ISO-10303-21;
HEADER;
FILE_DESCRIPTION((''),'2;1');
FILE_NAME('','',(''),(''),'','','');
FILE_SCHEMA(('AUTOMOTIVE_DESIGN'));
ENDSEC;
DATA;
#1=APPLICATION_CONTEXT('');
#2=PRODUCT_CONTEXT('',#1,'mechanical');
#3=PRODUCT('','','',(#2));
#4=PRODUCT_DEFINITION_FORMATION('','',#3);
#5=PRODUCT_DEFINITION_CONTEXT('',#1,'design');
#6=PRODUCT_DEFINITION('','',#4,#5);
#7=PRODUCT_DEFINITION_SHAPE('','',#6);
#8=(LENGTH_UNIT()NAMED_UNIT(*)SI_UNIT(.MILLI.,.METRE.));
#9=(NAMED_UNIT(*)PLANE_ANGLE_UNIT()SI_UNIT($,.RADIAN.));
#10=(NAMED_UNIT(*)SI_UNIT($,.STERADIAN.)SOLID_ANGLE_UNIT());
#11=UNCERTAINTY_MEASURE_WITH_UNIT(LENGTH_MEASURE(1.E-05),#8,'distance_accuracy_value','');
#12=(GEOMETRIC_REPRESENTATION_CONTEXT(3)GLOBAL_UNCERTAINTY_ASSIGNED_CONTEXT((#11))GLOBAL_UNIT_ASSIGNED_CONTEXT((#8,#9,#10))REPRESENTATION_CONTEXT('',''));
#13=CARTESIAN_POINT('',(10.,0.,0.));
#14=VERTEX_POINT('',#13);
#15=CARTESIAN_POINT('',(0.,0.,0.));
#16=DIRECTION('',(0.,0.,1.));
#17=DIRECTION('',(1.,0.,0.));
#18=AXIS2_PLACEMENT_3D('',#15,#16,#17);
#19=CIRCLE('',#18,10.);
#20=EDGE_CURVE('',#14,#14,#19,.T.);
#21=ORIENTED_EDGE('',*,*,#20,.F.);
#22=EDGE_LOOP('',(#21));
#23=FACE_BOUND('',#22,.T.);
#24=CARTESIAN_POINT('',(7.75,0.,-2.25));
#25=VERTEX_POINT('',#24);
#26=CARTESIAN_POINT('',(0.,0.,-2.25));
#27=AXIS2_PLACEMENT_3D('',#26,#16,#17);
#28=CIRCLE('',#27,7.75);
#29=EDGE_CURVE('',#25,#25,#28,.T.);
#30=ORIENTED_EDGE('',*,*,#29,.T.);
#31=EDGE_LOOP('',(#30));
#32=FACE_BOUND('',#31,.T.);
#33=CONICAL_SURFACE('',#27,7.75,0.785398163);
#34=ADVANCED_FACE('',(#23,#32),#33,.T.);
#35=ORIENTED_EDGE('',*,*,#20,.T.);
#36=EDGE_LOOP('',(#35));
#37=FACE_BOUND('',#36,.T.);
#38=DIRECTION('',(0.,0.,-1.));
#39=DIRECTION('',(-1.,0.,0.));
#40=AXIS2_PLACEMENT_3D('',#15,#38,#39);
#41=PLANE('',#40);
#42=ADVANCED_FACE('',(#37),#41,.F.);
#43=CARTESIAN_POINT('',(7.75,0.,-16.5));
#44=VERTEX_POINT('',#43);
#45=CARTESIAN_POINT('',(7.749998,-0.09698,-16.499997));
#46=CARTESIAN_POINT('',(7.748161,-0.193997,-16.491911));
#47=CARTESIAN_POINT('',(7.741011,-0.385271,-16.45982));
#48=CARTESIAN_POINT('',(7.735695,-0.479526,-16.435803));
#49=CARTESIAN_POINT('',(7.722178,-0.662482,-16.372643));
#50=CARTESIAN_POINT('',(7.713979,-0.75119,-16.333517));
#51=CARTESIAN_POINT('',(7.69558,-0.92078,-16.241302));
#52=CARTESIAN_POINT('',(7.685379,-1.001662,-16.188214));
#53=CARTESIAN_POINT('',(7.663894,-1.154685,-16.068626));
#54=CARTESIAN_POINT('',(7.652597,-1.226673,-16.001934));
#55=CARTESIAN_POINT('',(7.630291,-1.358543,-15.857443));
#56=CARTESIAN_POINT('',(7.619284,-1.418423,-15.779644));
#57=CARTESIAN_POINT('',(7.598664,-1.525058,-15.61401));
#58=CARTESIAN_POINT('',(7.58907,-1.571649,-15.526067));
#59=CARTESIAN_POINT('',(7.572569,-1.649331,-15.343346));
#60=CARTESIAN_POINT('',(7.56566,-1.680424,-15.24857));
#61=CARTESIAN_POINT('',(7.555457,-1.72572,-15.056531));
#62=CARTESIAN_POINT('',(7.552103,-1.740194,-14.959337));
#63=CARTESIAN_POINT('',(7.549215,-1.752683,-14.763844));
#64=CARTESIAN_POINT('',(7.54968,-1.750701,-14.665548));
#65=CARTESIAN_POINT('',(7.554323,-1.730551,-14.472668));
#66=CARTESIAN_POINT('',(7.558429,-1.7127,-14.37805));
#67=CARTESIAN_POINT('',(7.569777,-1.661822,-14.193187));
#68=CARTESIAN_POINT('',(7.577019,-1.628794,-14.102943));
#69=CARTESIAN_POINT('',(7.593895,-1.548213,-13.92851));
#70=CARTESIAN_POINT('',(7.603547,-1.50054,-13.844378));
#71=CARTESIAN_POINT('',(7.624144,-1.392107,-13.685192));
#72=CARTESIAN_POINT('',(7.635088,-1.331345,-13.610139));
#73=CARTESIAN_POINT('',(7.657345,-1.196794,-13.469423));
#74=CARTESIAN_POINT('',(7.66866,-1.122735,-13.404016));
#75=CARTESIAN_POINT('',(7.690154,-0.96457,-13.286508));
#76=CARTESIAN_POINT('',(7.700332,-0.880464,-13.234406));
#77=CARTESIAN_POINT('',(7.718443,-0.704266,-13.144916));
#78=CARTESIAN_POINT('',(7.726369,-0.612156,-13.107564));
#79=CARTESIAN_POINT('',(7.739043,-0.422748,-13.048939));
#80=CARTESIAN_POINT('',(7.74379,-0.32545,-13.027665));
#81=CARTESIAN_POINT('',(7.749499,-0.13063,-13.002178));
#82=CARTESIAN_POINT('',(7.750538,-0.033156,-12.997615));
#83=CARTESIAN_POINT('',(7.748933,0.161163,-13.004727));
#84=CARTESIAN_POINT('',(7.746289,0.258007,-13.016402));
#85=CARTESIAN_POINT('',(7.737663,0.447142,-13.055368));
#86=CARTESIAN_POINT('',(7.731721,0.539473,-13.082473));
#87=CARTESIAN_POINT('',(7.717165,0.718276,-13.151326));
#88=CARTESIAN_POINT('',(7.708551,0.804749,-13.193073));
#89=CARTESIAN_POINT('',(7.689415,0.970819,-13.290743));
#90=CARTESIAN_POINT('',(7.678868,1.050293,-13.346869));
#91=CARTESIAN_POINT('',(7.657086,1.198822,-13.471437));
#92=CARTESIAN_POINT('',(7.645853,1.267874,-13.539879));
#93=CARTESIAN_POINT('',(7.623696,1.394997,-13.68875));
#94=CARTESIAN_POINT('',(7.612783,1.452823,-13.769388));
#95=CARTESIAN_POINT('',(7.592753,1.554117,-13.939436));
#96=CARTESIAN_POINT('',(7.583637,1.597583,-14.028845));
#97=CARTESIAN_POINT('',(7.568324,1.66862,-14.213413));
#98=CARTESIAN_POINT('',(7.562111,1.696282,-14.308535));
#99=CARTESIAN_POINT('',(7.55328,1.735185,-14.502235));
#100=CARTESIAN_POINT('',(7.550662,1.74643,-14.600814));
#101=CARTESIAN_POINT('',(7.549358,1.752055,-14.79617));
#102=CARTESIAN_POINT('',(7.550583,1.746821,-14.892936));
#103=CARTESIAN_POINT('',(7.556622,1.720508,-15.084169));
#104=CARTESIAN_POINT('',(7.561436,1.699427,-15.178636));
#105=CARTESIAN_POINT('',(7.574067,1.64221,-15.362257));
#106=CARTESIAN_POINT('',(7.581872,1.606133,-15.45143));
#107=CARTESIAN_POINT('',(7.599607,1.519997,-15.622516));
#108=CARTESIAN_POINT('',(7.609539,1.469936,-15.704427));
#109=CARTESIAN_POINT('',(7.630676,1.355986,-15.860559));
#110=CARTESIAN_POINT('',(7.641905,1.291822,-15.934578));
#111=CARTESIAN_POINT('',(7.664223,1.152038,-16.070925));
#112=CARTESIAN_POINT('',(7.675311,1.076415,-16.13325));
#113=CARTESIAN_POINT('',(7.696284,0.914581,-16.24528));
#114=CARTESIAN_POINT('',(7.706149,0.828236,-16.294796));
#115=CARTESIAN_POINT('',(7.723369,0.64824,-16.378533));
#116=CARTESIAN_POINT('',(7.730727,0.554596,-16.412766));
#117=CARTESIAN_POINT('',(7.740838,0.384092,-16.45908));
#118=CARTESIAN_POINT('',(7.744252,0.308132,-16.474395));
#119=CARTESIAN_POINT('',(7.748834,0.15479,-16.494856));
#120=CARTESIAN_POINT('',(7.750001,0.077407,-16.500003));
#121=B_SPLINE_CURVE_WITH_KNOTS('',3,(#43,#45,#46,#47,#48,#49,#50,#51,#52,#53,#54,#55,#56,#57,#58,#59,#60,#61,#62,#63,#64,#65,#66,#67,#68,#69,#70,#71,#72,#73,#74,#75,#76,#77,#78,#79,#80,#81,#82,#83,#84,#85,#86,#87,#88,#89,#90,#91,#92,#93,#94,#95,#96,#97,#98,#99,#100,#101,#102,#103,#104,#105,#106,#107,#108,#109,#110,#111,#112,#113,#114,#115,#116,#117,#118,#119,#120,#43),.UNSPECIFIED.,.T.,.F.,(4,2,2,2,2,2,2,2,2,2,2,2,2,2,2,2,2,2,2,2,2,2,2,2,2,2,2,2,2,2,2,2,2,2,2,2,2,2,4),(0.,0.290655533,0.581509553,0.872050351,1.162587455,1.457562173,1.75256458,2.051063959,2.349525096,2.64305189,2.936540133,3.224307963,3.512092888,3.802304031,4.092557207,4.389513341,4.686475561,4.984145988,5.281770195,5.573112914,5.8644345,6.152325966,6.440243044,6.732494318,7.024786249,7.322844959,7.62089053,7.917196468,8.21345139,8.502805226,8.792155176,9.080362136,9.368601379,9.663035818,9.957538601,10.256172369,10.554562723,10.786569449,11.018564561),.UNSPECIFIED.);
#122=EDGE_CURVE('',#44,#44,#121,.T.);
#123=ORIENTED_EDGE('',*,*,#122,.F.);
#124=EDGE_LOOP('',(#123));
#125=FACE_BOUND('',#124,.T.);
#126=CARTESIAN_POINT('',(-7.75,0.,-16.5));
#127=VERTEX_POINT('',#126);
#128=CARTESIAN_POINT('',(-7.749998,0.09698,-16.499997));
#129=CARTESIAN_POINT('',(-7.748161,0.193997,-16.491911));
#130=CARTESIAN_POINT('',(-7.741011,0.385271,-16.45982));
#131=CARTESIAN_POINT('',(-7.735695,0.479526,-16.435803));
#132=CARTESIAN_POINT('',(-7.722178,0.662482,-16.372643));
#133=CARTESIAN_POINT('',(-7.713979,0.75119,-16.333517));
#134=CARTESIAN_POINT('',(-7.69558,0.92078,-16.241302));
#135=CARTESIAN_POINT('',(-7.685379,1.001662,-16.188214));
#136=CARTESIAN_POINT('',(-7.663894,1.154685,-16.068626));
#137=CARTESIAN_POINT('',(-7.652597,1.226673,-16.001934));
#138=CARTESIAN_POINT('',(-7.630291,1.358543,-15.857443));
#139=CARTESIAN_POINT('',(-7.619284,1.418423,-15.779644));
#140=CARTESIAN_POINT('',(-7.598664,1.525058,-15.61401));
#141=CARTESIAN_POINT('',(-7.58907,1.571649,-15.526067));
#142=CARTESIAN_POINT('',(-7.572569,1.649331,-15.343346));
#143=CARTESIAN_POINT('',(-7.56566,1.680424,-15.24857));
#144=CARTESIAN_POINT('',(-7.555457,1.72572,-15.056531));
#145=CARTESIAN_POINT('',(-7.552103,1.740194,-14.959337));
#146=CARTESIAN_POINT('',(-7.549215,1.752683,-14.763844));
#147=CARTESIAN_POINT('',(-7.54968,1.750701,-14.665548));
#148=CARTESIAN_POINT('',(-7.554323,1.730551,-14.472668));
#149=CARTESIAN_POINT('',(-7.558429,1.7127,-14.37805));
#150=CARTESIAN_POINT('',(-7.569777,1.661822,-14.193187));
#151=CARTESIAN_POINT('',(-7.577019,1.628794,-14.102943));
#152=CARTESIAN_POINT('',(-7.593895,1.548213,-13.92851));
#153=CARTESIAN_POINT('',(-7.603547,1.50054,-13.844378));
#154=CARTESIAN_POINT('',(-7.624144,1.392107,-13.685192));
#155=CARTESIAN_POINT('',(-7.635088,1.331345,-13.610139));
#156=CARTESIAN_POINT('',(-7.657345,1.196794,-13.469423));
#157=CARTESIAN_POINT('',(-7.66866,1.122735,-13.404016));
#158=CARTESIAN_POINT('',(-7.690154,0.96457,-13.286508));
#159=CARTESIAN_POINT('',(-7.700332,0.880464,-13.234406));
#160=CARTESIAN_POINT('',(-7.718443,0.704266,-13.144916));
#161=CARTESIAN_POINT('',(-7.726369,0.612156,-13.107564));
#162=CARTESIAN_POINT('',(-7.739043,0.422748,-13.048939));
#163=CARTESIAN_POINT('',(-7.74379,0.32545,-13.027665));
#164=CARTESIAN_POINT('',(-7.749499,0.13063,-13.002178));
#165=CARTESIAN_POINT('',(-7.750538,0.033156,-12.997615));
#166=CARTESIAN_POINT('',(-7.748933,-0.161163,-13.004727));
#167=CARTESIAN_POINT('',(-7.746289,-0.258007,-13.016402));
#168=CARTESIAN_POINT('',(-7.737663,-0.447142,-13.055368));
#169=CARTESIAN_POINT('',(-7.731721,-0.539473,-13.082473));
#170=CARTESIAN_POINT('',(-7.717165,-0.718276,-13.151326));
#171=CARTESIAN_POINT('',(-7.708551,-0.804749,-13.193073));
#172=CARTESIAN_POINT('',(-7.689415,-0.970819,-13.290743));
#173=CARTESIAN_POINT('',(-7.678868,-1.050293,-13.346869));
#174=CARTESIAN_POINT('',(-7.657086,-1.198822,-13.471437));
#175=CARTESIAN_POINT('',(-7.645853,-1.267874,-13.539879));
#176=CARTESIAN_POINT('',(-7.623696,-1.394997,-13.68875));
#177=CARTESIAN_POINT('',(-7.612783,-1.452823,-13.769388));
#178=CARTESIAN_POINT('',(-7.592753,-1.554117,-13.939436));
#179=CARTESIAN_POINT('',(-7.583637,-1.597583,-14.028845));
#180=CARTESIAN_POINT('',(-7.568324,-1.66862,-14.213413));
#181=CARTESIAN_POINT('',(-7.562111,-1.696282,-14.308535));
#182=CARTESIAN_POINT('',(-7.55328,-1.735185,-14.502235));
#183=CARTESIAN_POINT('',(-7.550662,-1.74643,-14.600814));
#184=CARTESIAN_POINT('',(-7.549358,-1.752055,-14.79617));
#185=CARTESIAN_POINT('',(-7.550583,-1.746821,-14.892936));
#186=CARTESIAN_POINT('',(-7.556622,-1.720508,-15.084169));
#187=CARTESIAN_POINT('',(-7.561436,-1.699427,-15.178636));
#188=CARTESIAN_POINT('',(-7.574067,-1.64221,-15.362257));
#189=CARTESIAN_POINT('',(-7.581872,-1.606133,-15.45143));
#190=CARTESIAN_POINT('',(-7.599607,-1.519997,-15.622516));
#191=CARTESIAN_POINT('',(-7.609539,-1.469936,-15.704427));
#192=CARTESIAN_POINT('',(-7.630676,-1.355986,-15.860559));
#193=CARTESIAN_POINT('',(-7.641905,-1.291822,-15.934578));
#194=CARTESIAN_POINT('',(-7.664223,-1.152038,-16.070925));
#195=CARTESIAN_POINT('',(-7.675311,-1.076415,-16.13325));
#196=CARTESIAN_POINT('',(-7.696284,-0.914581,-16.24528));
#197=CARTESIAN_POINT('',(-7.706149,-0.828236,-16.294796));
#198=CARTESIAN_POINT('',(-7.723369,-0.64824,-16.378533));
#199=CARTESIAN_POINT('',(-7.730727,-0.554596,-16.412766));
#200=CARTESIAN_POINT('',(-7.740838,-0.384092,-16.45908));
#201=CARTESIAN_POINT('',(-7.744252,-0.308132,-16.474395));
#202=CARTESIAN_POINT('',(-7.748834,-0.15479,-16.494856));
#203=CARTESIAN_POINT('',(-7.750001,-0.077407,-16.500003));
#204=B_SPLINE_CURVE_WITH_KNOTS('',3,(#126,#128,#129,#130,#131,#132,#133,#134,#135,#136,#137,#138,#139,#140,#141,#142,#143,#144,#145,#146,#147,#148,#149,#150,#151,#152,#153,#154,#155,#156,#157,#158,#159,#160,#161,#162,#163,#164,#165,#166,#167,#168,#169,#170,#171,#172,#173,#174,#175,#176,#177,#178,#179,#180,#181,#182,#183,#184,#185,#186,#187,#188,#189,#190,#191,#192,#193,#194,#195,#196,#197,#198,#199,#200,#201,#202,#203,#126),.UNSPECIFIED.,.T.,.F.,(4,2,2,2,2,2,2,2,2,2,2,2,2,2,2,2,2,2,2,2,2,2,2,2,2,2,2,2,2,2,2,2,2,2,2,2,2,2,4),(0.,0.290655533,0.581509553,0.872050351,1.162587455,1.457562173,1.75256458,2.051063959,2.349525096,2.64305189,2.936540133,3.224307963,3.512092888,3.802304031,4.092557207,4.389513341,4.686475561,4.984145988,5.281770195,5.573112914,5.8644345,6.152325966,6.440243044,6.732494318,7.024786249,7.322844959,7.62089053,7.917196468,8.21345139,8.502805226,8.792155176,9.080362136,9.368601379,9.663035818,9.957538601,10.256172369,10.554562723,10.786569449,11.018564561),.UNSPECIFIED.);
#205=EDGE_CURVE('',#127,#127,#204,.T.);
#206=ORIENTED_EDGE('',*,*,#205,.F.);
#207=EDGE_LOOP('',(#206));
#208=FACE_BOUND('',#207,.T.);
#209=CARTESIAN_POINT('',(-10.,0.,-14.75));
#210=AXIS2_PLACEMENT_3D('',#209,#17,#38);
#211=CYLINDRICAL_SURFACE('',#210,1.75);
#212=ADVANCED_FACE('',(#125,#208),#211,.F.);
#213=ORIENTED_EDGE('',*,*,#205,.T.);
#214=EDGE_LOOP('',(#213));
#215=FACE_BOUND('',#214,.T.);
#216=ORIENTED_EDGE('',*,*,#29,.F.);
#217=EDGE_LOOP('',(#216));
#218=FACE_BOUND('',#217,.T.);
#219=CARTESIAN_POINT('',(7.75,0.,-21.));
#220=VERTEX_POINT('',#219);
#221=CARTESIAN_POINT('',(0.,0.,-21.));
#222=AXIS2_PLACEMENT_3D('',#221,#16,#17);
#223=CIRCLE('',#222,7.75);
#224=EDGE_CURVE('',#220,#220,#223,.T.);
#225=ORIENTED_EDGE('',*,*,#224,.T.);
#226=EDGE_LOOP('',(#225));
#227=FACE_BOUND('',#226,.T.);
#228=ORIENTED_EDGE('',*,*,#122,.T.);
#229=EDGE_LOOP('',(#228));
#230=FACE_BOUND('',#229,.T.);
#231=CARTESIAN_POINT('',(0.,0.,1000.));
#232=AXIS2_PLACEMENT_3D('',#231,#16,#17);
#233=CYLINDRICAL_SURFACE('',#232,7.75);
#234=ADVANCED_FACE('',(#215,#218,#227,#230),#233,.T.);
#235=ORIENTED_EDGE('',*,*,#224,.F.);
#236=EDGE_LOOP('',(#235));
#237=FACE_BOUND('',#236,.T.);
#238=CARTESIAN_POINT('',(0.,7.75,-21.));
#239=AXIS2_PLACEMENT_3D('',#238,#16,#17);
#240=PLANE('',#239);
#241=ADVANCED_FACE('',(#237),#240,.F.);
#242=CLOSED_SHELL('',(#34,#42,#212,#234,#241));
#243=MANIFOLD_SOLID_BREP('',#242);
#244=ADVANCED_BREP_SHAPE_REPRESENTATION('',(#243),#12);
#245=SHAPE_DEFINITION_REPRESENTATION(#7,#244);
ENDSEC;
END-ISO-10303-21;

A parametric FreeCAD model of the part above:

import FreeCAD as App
import Part
import Sketcher

V = App.Vector
Q = App.Units.Quantity

doc = App.newDocument("Part")
body = doc.addObject("PartDesign::Body", "Body")

# Sketch on YZ plane
sketch1 = body.newObject("Sketcher::SketchObject", "Sketch")
sketch1.AttachmentSupport = (doc.getObject("YZ_Plane"), [""])
sketch1.MapMode = "FlatFace"
sketch1.addGeometry(Part.LineSegment(V(10, 0, 0), V(0, 0, 0)), False)
sketch1.addGeometry(Part.LineSegment(V(0, 0, 0), V(0, -21, 0)), False)
sketch1.addGeometry(Part.LineSegment(V(0, -21, 0), V(7.8, -21, 0)), False)
sketch1.addGeometry(Part.LineSegment(V(7.8, -21, 0), V(7.8, -2.2, 0)), False)
sketch1.addGeometry(Part.LineSegment(V(7.8, -2.2, 0), V(10, 0, 0)), False)
sketch1.addConstraint(Sketcher.Constraint("Coincident", 0, 2, 1, 1))
sketch1.addConstraint(Sketcher.Constraint("Coincident", 1, 2, 2, 1))
sketch1.addConstraint(Sketcher.Constraint("Coincident", 2, 2, 3, 1))
sketch1.addConstraint(Sketcher.Constraint("Coincident", 3, 2, 4, 1))
sketch1.addConstraint(Sketcher.Constraint("Coincident", 4, 2, 0, 1))
sketch1.addConstraint(Sketcher.Constraint("Horizontal", 0))
sketch1.addConstraint(Sketcher.Constraint("Vertical", 1))
sketch1.addConstraint(Sketcher.Constraint("Horizontal", 2))
sketch1.addConstraint(Sketcher.Constraint("Vertical", 3))
sketch1.addConstraint(Sketcher.Constraint("Coincident", 0, 2, -1, 1))
sketch1.addConstraint(Sketcher.Constraint("DistanceX", 0, 2, 0, 1, 10.0))
sketch1.addConstraint(Sketcher.Constraint("DistanceY", 1, 2, 1, 1, 21.0))
sketch1.addConstraint(Sketcher.Constraint("Angle", 4, Q("45 deg")))
sketch1.addConstraint(Sketcher.Constraint("DistanceX", 2, 1, 2, 2, 7.75))
revolution = body.newObject("PartDesign::Revolution", "Revolution")
revolution.Profile = sketch1
revolution.ReferenceAxis = (sketch1, ["V_Axis"])
revolution.Angle = 360

# Sketch on YZ plane
sketch2 = body.newObject("Sketcher::SketchObject", "Sketch001")
sketch2.AttachmentSupport = (doc.getObject("YZ_Plane"), [""])
sketch2.MapMode = "FlatFace"
sketch2.addGeometry(Part.Circle(V(0, -14.8, 0), V(0, 0, 1), 1.8), False)
sketch2.addConstraint(Sketcher.Constraint("PointOnObject", 0, 3, -2))
sketch2.addConstraint(Sketcher.Constraint("Diameter", 0, 3.5))
sketch2.addConstraint(Sketcher.Constraint("DistanceY", 0, 3, -1, 1, 14.75))
pocket1 = body.newObject("PartDesign::Pocket", "Pocket")
pocket1.Profile = sketch2
pocket1.Type = "ThroughAll"
pocket1.Midplane = True

doc.recompute()
